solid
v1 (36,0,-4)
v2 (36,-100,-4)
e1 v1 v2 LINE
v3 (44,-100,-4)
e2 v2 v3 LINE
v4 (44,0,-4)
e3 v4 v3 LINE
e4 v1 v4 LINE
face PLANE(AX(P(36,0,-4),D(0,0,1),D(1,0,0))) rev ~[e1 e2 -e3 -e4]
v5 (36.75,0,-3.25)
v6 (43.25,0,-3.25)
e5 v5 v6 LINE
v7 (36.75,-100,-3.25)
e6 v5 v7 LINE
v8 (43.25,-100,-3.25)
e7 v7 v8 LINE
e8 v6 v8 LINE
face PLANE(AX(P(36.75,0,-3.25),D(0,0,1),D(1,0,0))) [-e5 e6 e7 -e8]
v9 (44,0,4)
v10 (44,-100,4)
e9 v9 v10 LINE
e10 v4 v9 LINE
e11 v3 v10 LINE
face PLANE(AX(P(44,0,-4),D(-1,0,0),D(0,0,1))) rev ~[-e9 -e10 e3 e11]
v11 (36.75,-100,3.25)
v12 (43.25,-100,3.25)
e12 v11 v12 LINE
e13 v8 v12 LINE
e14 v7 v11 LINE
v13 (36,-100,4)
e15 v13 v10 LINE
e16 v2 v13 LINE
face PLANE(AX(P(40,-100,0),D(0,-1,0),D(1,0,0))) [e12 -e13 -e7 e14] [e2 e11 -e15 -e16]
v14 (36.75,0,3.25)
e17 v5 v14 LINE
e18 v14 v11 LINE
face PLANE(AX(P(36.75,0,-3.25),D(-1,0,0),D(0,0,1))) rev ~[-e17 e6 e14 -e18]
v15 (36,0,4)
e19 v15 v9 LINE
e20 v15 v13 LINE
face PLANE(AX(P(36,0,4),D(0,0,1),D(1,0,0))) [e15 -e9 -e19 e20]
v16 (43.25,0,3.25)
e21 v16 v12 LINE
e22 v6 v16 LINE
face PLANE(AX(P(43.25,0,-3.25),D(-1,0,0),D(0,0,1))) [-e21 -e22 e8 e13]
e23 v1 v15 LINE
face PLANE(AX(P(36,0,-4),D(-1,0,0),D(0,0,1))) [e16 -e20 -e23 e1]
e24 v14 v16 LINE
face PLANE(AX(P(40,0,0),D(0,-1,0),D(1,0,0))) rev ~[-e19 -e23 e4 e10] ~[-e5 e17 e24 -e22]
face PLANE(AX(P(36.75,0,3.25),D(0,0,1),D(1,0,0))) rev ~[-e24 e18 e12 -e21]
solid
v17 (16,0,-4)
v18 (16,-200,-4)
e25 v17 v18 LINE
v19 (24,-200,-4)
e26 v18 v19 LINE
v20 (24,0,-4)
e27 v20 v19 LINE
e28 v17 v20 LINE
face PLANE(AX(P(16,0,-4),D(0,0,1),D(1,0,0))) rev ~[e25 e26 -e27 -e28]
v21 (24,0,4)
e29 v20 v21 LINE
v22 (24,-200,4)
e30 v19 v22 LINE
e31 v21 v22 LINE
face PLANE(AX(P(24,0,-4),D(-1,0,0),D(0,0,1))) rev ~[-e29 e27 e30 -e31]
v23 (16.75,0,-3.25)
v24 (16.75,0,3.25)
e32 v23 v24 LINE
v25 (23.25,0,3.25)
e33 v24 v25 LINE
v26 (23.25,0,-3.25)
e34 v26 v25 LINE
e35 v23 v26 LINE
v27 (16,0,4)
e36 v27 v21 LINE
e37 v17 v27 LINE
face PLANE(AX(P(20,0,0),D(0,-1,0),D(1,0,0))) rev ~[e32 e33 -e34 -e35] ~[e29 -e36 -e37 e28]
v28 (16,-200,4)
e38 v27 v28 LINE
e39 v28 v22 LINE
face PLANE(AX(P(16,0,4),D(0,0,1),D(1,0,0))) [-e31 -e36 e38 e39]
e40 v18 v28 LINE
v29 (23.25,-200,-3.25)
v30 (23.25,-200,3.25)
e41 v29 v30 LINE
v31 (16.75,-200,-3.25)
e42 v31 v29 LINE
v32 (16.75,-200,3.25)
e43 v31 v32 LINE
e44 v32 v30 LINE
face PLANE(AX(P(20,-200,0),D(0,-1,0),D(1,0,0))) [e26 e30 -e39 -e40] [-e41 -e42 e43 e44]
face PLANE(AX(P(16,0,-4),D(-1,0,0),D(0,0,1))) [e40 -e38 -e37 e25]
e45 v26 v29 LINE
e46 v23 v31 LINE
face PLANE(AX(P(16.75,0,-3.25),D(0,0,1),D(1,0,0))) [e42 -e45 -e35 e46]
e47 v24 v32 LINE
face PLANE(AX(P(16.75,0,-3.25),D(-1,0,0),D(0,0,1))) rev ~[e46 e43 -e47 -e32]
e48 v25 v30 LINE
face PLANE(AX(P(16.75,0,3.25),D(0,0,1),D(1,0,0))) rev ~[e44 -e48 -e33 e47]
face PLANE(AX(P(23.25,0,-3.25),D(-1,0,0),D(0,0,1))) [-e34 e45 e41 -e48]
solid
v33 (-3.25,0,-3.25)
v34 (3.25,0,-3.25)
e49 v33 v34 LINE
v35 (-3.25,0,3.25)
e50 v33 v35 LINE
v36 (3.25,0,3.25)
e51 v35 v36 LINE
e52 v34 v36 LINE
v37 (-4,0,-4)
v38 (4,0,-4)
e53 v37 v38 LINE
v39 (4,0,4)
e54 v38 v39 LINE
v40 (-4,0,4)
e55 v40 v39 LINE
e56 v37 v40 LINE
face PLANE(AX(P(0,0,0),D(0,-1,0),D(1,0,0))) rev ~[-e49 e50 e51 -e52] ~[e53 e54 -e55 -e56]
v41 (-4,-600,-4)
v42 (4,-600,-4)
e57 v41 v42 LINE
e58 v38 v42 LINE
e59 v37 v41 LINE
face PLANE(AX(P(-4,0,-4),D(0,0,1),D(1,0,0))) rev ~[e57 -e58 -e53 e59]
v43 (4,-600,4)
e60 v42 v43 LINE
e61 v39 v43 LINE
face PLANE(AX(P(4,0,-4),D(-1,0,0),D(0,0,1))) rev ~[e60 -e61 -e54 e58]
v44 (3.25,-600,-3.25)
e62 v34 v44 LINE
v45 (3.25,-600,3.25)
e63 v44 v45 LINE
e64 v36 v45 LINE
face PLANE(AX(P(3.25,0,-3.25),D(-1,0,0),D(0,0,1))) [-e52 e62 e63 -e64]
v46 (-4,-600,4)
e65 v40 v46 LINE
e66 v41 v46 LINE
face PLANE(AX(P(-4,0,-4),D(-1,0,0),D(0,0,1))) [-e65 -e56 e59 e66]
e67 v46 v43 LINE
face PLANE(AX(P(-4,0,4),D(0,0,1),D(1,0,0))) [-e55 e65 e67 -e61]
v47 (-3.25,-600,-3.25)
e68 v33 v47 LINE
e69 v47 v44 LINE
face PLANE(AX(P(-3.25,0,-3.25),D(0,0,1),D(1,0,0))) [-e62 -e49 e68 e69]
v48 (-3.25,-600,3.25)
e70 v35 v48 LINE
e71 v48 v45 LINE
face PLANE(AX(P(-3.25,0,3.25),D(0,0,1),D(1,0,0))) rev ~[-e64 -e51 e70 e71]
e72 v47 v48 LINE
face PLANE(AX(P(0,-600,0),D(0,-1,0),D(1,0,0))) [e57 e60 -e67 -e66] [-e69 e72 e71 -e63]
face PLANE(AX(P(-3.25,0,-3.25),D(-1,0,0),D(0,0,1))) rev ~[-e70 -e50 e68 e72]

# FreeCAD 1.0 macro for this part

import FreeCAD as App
import Part
import Sketcher

V = App.Vector
Q = App.Units.Quantity

doc = App.newDocument("Part")
body = doc.addObject("PartDesign::Body", "Body")

# Sketch on XZ plane
sketch1 = body.newObject("Sketcher::SketchObject", "Sketch")
sketch1.AttachmentSupport = (doc.getObject("XZ_Plane"), [""])
sketch1.MapMode = "FlatFace"
sketch1.addGeometry([
    Part.LineSegment(V(-4, 4, 0), V(-4, -4, 0)),  # 0
    Part.LineSegment(V(-4, -4, 0), V(4, -4, 0)),  # 1
    Part.LineSegment(V(4, -4, 0), V(4, 4, 0)),  # 2
    Part.LineSegment(V(4, 4, 0), V(-4, 4, 0)),  # 3
    Part.LineSegment(V(3, -3, 0), V(-3, -3, 0)),  # 4
    Part.LineSegment(V(-3, -3, 0), V(-3, 3, 0)),  # 5
    Part.LineSegment(V(-3, 3, 0), V(3, 3, 0)),  # 6
    Part.LineSegment(V(3, 3, 0), V(3, -3, 0)),  # 7
], False)
sketch1.addConstraint([
    Sketcher.Constraint("Coincident", 0, 2, 1, 1),
    Sketcher.Constraint("Coincident", 1, 2, 2, 1),
    Sketcher.Constraint("Coincident", 2, 2, 3, 1),
    Sketcher.Constraint("Coincident", 3, 2, 0, 1),
    Sketcher.Constraint("Coincident", 4, 2, 5, 1),
    Sketcher.Constraint("Coincident", 5, 2, 6, 1),
    Sketcher.Constraint("Coincident", 6, 2, 7, 1),
    Sketcher.Constraint("Coincident", 7, 2, 4, 1),
    Sketcher.Constraint("Vertical", 0),
    Sketcher.Constraint("Horizontal", 1),
    Sketcher.Constraint("Vertical", 2),
    Sketcher.Constraint("Horizontal", 3),
    Sketcher.Constraint("Horizontal", 4),
    Sketcher.Constraint("Vertical", 5),
    Sketcher.Constraint("Horizontal", 6),
    Sketcher.Constraint("Vertical", 7),
    Sketcher.Constraint("Symmetric", 0, 2, 2, 2, -1, 1),
    Sketcher.Constraint("Symmetric", 4, 2, 6, 2, -1, 1),
    Sketcher.Constraint("Equal", 3, 0),
    Sketcher.Constraint("Equal", 6, 5),
    Sketcher.Constraint("DistanceX", 1, 1, 1, 2, Q("8 mm")),
    Sketcher.Constraint("DistanceX", 4, 2, 4, 1, Q("6.5 mm")),
])
pad1 = body.newObject("PartDesign::Pad", "Pad")
pad1.Profile = sketch1
pad1.Length = 600
body2 = doc.addObject("PartDesign::Body", "Body001")

# Sketch on XZ plane
sketch2 = body2.newObject("Sketcher::SketchObject", "Sketch001")
sketch2.AttachmentSupport = (doc.getObject("XZ_Plane001"), [""])
sketch2.MapMode = "FlatFace"
sketch2.addGeometry([
    Part.LineSegment(V(16, 4, 0), V(16, -4, 0)),  # 0
    Part.LineSegment(V(16, -4, 0), V(24, -4, 0)),  # 1
    Part.LineSegment(V(24, -4, 0), V(24, 4, 0)),  # 2
    Part.LineSegment(V(24, 4, 0), V(16, 4, 0)),  # 3
    Part.LineSegment(V(23, -3, 0), V(17, -3, 0)),  # 4
    Part.LineSegment(V(17, -3, 0), V(17, 3, 0)),  # 5
    Part.LineSegment(V(17, 3, 0), V(23, 3, 0)),  # 6
    Part.LineSegment(V(23, 3, 0), V(23, -3, 0)),  # 7
], False)
sketch2.addConstraint([
    Sketcher.Constraint("Coincident", 0, 2, 1, 1),
    Sketcher.Constraint("Coincident", 1, 2, 2, 1),
    Sketcher.Constraint("Coincident", 2, 2, 3, 1),
    Sketcher.Constraint("Coincident", 3, 2, 0, 1),
    Sketcher.Constraint("Coincident", 4, 2, 5, 1),
    Sketcher.Constraint("Coincident", 5, 2, 6, 1),
    Sketcher.Constraint("Coincident", 6, 2, 7, 1),
    Sketcher.Constraint("Coincident", 7, 2, 4, 1),
    Sketcher.Constraint("Vertical", 0),
    Sketcher.Constraint("Horizontal", 1),
    Sketcher.Constraint("Vertical", 2),
    Sketcher.Constraint("Horizontal", 3),
    Sketcher.Constraint("Horizontal", 4),
    Sketcher.Constraint("Vertical", 5),
    Sketcher.Constraint("Horizontal", 6),
    Sketcher.Constraint("Vertical", 7),
    Sketcher.Constraint("Equal", 3, 0),
    Sketcher.Constraint("Equal", 6, 5),
    Sketcher.Constraint("DistanceX", 1, 1, 1, 2, Q("8 mm")),
    Sketcher.Constraint("DistanceX", 4, 2, 4, 1, Q("6.5 mm")),
    Sketcher.Constraint("DistanceX", -1, 1, 0, 2, Q("16 mm")),
    Sketcher.Constraint("DistanceY", 0, 2, -1, 1, Q("4 mm")),
    Sketcher.Constraint("DistanceX", -1, 1, 4, 2, Q("16.75 mm")),
    Sketcher.Constraint("DistanceY", 4, 2, -1, 1, Q("3.25 mm")),
])
pad2 = body2.newObject("PartDesign::Pad", "Pad001")
pad2.Profile = sketch2
pad2.Length = 200
body3 = doc.addObject("PartDesign::Body", "Body002")

# Sketch on XZ plane
sketch3 = body3.newObject("Sketcher::SketchObject", "Sketch002")
sketch3.AttachmentSupport = (doc.getObject("XZ_Plane002"), [""])
sketch3.MapMode = "FlatFace"
sketch3.addGeometry([
    Part.LineSegment(V(36, 4, 0), V(36, -4, 0)),  # 0
    Part.LineSegment(V(36, -4, 0), V(44, -4, 0)),  # 1
    Part.LineSegment(V(44, -4, 0), V(44, 4, 0)),  # 2
    Part.LineSegment(V(44, 4, 0), V(36, 4, 0)),  # 3
    Part.LineSegment(V(43, -3, 0), V(37, -3, 0)),  # 4
    Part.LineSegment(V(37, -3, 0), V(37, 3, 0)),  # 5
    Part.LineSegment(V(37, 3, 0), V(43, 3, 0)),  # 6
    Part.LineSegment(V(43, 3, 0), V(43, -3, 0)),  # 7
], False)
sketch3.addConstraint([
    Sketcher.Constraint("Coincident", 0, 2, 1, 1),
    Sketcher.Constraint("Coincident", 1, 2, 2, 1),
    Sketcher.Constraint("Coincident", 2, 2, 3, 1),
    Sketcher.Constraint("Coincident", 3, 2, 0, 1),
    Sketcher.Constraint("Coincident", 4, 2, 5, 1),
    Sketcher.Constraint("Coincident", 5, 2, 6, 1),
    Sketcher.Constraint("Coincident", 6, 2, 7, 1),
    Sketcher.Constraint("Coincident", 7, 2, 4, 1),
    Sketcher.Constraint("Vertical", 0),
    Sketcher.Constraint("Horizontal", 1),
    Sketcher.Constraint("Vertical", 2),
    Sketcher.Constraint("Horizontal", 3),
    Sketcher.Constraint("Horizontal", 4),
    Sketcher.Constraint("Vertical", 5),
    Sketcher.Constraint("Horizontal", 6),
    Sketcher.Constraint("Vertical", 7),
    Sketcher.Constraint("Equal", 3, 0),
    Sketcher.Constraint("Equal", 6, 5),
    Sketcher.Constraint("DistanceX", 1, 1, 1, 2, Q("8 mm")),
    Sketcher.Constraint("DistanceX", 4, 2, 4, 1, Q("6.5 mm")),
    Sketcher.Constraint("DistanceX", -1, 1, 0, 2, Q("36 mm")),
    Sketcher.Constraint("DistanceY", 0, 2, -1, 1, Q("4 mm")),
    Sketcher.Constraint("DistanceX", -1, 1, 4, 2, Q("36.75 mm")),
    Sketcher.Constraint("DistanceY", 4, 2, -1, 1, Q("3.25 mm")),
])
pad3 = body3.newObject("PartDesign::Pad", "Pad002")
pad3.Profile = sketch3
pad3.Length = 100

doc.recompute()
